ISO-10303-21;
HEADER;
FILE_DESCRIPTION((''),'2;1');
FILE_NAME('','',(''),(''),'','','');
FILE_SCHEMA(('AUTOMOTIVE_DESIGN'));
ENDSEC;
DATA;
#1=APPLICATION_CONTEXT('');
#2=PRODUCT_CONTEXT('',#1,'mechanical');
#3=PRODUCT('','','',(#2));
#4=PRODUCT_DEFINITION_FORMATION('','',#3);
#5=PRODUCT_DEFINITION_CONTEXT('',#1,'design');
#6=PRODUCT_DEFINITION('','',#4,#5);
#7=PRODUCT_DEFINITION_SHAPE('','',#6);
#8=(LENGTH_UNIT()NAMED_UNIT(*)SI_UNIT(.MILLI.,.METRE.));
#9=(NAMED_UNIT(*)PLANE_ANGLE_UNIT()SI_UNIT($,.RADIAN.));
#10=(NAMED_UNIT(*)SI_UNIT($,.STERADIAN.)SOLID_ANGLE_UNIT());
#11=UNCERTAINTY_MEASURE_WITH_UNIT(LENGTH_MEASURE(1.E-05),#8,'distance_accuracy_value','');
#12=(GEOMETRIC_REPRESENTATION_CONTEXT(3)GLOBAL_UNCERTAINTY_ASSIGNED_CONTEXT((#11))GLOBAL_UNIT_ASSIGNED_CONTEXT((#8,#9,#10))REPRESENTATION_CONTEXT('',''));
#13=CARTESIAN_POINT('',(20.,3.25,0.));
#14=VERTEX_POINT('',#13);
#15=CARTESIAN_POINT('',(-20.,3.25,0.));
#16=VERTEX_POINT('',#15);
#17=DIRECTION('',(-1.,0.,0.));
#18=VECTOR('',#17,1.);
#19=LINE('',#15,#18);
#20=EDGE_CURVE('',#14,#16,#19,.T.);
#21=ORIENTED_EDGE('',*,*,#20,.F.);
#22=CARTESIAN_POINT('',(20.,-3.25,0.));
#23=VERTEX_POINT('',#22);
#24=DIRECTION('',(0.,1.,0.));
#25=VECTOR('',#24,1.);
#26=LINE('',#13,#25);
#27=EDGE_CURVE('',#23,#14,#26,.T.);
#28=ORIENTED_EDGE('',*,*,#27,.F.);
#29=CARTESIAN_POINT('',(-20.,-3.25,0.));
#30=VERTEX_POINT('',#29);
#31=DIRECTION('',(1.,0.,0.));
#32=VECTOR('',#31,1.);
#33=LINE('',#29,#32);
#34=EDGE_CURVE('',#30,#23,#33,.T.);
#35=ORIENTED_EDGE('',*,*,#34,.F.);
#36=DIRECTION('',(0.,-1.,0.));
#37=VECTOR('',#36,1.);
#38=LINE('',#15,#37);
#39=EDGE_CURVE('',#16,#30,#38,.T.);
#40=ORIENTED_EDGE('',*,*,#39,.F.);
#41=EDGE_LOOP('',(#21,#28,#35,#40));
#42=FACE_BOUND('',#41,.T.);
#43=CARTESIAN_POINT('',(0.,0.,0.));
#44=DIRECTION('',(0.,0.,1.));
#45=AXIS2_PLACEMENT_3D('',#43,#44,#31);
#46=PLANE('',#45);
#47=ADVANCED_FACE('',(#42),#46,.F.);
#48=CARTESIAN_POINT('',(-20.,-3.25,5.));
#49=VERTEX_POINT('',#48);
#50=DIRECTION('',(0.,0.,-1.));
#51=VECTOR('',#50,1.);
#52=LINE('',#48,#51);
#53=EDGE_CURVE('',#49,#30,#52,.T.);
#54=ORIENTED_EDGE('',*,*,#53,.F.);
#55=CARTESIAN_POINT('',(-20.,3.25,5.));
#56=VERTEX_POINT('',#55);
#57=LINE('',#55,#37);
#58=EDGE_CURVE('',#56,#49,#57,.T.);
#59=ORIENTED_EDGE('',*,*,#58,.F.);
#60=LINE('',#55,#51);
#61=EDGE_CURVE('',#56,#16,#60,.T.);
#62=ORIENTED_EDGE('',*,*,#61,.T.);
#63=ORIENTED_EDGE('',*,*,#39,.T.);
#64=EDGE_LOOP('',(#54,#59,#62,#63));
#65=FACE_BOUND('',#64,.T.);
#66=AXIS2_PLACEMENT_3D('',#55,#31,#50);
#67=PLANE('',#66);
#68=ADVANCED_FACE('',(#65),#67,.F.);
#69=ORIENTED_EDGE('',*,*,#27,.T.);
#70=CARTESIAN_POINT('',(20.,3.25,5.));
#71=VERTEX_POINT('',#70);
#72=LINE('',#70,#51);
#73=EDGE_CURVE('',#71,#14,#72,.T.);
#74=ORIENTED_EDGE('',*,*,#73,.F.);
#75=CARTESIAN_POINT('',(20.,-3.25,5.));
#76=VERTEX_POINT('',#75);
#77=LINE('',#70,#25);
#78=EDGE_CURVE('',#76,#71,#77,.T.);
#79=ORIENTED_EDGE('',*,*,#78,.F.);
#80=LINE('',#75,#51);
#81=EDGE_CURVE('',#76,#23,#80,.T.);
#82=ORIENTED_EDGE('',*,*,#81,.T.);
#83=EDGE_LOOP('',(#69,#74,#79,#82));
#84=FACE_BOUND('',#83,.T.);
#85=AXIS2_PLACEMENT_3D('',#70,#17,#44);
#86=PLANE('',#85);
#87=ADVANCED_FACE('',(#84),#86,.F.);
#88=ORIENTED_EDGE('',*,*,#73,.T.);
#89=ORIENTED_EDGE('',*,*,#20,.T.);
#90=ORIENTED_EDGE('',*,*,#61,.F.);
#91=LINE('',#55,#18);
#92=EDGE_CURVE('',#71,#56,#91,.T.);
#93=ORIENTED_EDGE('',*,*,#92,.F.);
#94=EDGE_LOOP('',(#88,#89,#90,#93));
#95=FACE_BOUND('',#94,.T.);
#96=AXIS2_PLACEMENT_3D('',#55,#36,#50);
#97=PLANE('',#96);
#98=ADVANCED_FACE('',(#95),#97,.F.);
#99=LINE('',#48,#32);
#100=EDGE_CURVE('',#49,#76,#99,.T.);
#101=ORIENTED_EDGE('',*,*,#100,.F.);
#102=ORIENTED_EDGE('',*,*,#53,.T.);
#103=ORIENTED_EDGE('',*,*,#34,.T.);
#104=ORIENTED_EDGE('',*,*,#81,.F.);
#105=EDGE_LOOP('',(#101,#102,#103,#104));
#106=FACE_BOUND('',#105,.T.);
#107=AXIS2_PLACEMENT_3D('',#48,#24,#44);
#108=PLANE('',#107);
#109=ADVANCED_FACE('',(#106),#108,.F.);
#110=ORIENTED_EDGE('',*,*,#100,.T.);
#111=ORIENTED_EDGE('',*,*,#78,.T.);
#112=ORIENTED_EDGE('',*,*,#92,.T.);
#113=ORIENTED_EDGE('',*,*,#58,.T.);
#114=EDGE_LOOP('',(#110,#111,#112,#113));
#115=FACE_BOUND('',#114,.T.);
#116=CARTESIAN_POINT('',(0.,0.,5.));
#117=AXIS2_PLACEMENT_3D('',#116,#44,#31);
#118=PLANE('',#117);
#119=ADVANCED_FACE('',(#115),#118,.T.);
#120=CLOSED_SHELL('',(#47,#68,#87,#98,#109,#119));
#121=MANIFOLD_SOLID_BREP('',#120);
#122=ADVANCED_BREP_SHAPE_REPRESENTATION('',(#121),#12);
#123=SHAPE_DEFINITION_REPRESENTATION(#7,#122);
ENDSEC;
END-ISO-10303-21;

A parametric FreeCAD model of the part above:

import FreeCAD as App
import Part
import Sketcher

doc = App.newDocument("Part")
body = doc.addObject("PartDesign::Body", "Body")

# Sketch on XY plane
sketch1 = body.newObject("Sketcher::SketchObject", "Sketch")
sketch1.AttachmentSupport = (doc.getObject("XY_Plane"), [""])
sketch1.MapMode = "FlatFace"
sketch1.addGeometry(Part.LineSegment(App.Vector(-20, 3, 0), App.Vector(-20, -3, 0)), False)
sketch1.addGeometry(Part.LineSegment(App.Vector(-20, -3, 0), App.Vector(20, -3, 0)), False)
sketch1.addGeometry(Part.LineSegment(App.Vector(20, -3, 0), App.Vector(20, 3, 0)), False)
sketch1.addGeometry(Part.LineSegment(App.Vector(20, 3, 0), App.Vector(-20, 3, 0)), False)
sketch1.addConstraint(Sketcher.Constraint("Coincident", 0, 2, 1, 1))
sketch1.addConstraint(Sketcher.Constraint("Coincident", 1, 2, 2, 1))
sketch1.addConstraint(Sketcher.Constraint("Coincident", 2, 2, 3, 1))
sketch1.addConstraint(Sketcher.Constraint("Coincident", 3, 2, 0, 1))
sketch1.addConstraint(Sketcher.Constraint("Vertical", 0))
sketch1.addConstraint(Sketcher.Constraint("Horizontal", 1))
sketch1.addConstraint(Sketcher.Constraint("Vertical", 2))
sketch1.addConstraint(Sketcher.Constraint("Horizontal", 3))
sketch1.addConstraint(Sketcher.Constraint("Symmetric", 0, 2, 2, 2, -1, 1))
sketch1.addConstraint(Sketcher.Constraint("DistanceX", 1, 1, 1, 2, 40.0))
sketch1.addConstraint(Sketcher.Constraint("DistanceY", 0, 2, 0, 1, 6.5))
pad1 = body.newObject("PartDesign::Pad", "Pad")
pad1.Profile = sketch1
pad1.Length = 5

doc.recompute()
